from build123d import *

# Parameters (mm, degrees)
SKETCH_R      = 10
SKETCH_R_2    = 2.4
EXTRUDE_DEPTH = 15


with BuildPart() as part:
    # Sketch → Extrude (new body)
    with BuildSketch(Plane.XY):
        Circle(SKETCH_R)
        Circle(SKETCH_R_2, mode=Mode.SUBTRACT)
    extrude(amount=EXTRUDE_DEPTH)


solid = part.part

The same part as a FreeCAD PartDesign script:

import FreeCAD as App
import Part
import Sketcher
Q = App.Units.Quantity

doc = App.newDocument("Part")
body = doc.addObject("PartDesign::Body", "Body")

# Sketch on XY plane
sketch1 = body.newObject("Sketcher::SketchObject", "Sketch")
sketch1.AttachmentSupport = (doc.getObject("XY_Plane"), [""])
sketch1.MapMode = "FlatFace"
sketch1.addGeometry(Part.Circle(App.Vector(0, 0, 0), App.Vector(0, 0, 1), 10), False)
sketch1.addGeometry(Part.Circle(App.Vector(0, 0, 0), App.Vector(0, 0, 1), 2.4), False)
sketch1.addConstraint(Sketcher.Constraint("Coincident", 0, 3, -1, 1))
sketch1.addConstraint(Sketcher.Constraint("Coincident", 1, 3, -1, 1))
sketch1.addConstraint(Sketcher.Constraint("Diameter", 0, Q("20 mm")))
sketch1.addConstraint(Sketcher.Constraint("Diameter", 1, Q("4.8 mm")))
pad1 = body.newObject("PartDesign::Pad", "Pad")
pad1.Profile = sketch1
pad1.Length = 15

doc.recompute()
